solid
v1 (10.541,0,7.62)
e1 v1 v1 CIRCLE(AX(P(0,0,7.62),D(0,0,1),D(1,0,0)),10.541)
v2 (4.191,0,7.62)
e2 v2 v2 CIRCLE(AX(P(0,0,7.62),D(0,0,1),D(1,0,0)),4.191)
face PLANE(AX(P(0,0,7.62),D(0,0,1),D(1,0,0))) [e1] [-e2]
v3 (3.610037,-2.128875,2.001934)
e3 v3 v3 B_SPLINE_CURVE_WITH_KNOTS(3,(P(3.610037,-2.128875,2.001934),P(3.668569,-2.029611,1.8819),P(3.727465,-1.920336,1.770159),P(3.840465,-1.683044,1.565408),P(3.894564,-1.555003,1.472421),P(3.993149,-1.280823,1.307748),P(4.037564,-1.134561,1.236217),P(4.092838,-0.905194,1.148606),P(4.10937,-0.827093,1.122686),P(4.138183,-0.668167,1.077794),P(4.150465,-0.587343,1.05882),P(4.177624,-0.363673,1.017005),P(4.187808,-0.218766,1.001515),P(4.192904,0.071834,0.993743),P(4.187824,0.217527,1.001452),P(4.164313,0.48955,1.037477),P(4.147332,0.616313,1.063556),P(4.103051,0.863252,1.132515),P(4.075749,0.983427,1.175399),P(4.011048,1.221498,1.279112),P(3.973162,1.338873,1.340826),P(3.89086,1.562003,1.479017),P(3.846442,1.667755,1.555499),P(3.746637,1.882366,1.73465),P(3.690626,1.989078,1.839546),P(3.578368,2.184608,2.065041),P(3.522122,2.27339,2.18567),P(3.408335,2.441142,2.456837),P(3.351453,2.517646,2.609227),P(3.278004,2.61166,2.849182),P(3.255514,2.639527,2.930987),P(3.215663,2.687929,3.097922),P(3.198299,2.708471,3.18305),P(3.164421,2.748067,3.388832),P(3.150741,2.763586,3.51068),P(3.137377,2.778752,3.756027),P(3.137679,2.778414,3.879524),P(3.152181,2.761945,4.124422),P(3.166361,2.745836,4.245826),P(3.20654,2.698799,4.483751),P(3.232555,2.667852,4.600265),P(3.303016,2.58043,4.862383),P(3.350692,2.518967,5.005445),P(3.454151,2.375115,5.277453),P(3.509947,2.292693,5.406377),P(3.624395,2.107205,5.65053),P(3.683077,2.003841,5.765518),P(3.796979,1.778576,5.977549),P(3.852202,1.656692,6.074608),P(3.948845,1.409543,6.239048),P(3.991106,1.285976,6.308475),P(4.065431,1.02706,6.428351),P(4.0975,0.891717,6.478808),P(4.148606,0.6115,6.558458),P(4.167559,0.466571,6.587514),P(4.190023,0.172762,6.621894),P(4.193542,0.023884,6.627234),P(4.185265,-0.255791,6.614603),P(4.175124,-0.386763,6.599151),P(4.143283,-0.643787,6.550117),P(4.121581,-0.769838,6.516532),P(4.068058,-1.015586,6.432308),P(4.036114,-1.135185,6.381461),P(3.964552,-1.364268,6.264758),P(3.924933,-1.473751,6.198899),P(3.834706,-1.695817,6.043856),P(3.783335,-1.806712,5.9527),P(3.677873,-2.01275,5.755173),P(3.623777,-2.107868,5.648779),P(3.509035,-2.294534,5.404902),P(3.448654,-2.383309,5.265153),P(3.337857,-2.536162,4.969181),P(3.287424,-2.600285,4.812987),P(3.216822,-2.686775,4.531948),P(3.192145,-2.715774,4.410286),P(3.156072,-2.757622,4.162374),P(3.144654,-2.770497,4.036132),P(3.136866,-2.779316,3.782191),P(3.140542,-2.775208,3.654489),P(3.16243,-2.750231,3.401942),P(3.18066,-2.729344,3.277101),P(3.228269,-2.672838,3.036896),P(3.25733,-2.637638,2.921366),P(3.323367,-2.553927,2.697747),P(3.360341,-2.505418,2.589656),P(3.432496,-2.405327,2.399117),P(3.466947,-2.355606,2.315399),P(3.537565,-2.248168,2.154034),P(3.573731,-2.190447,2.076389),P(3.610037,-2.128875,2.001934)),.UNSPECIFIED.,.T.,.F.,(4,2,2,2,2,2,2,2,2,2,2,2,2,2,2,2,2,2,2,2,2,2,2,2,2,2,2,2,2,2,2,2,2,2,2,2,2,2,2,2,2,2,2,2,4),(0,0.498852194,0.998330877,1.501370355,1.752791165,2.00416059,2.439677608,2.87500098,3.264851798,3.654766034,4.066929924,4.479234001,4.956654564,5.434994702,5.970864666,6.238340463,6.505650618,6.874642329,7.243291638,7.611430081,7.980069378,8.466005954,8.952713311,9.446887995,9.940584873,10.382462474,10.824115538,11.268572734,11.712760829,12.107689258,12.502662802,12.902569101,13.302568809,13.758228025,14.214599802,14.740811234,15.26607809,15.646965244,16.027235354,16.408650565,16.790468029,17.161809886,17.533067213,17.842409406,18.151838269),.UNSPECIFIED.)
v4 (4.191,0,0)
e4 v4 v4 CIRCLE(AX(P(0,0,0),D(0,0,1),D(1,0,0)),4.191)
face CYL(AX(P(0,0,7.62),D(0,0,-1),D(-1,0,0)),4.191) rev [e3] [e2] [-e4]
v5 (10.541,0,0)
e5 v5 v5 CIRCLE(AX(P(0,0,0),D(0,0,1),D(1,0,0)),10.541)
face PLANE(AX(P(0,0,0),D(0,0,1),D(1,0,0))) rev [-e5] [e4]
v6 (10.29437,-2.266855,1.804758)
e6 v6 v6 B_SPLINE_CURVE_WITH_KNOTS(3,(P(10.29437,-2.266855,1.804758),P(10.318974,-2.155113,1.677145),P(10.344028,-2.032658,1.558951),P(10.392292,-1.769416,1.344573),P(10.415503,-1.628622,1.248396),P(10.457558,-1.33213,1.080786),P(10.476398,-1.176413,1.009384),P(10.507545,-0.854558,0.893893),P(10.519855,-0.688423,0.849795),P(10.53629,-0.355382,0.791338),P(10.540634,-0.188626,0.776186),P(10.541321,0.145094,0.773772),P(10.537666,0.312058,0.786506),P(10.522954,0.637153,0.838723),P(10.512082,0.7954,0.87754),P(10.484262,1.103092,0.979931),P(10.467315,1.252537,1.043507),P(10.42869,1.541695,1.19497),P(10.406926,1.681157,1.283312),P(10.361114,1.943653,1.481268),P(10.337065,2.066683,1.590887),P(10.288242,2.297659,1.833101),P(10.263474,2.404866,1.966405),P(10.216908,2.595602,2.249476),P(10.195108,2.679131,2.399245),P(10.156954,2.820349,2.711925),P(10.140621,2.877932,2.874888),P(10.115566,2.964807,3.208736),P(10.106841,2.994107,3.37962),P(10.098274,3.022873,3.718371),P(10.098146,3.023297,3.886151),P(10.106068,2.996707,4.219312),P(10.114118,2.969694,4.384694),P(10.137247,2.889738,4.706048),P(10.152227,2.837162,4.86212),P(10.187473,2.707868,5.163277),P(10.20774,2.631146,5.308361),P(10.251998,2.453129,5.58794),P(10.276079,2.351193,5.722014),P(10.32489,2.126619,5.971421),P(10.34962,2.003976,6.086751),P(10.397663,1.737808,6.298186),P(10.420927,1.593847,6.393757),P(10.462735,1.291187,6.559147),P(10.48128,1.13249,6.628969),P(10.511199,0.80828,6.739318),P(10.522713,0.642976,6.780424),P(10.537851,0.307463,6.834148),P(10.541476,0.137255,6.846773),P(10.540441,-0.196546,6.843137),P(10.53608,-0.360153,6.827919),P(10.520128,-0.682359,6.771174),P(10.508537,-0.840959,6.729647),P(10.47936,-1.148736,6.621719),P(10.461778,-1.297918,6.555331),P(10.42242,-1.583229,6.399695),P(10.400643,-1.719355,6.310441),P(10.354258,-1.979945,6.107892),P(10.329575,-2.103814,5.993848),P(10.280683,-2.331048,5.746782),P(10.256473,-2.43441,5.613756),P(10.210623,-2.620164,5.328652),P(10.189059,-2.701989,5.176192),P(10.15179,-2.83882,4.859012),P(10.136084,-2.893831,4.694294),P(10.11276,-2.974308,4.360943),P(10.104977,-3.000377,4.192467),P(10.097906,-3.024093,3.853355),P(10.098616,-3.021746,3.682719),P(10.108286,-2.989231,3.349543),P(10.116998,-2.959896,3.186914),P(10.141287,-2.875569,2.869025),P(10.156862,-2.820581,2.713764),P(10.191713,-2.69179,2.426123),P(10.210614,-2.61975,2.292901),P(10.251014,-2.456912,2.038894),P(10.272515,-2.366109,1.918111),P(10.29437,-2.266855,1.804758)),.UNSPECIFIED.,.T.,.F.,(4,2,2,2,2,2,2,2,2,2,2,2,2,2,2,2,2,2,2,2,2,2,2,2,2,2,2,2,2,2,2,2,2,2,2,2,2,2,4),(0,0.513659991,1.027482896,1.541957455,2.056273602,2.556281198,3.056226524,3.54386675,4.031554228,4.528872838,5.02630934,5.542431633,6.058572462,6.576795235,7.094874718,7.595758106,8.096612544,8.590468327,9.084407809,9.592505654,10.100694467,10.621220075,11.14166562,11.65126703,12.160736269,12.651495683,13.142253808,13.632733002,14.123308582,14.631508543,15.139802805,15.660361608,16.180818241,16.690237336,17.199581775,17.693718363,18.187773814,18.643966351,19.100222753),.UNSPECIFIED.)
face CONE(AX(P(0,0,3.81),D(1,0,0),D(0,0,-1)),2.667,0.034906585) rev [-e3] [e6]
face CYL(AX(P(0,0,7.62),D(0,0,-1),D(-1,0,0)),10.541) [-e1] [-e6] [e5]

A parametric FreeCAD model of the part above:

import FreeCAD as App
import Part
import Sketcher
from FreeCAD import Vector
Q = App.Units.Quantity

doc = App.newDocument("Part")
body = doc.addObject("PartDesign::Body", "Body")

# Sketch on XY plane
sketch1 = body.newObject("Sketcher::SketchObject", "Sketch")
sketch1.AttachmentSupport = (doc.getObject("XY_Plane"), [""])
sketch1.MapMode = "FlatFace"
sketch1.addGeometry([
    Part.Circle(Vector(0, 0, 0), Vector(0, 0, 1), 10.5),
    Part.Circle(Vector(0, 0, 0), Vector(0, 0, 1), 4.2),
], False)
sketch1.addConstraint([
    Sketcher.Constraint("Coincident", 0, 3, -1, 1),
    Sketcher.Constraint("Coincident", 1, 3, -1, 1),
    Sketcher.Constraint("Diameter", 0, Q("0.83 in")),
    Sketcher.Constraint("Diameter", 1, Q("0.33 in")),
])
pad1 = body.newObject("PartDesign::Pad", "Pad")
pad1.Profile = sketch1
pad1.Length = Q("0.3 in")

# Sketch on YZ plane
sketch2 = body.newObject("Sketcher::SketchObject", "Sketch001")
sketch2.AttachmentSupport = (doc.getObject("YZ_Plane"), [""])
sketch2.MapMode = "FlatFace"
sketch2.addGeometry(Part.Circle(Vector(0, 3.8, 0), Vector(0, 0, 1), 2.7), False)
sketch2.addConstraint([
    Sketcher.Constraint("PointOnObject", 0, 3, -2),
    Sketcher.Constraint("Diameter", 0, Q("0.21 in")),
    Sketcher.Constraint("DistanceY", -1, 1, 0, 3, Q("0.15 in")),
])
pocket1 = body.newObject("PartDesign::Pocket", "Pocket")
pocket1.Profile = sketch2
pocket1.Length = 11.541
pocket1.Reversed = True
pocket1.TaperAngle = 2

doc.recompute()
